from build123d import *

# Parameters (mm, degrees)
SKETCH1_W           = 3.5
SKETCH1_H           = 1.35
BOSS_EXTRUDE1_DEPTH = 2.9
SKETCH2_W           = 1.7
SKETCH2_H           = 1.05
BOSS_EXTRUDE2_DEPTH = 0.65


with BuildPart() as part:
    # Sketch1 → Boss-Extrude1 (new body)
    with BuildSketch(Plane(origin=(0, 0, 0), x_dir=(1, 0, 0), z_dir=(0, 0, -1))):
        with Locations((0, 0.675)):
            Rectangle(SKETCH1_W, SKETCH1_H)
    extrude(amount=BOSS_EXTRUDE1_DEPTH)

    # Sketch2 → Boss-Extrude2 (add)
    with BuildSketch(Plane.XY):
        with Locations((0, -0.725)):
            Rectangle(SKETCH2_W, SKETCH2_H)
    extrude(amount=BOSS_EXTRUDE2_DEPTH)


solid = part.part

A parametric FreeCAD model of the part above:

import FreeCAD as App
import Part
import Sketcher

V = App.Vector

doc = App.newDocument("Part")
body = doc.addObject("PartDesign::Body", "Body")

# Sketch on XY plane
sketch1 = body.newObject("Sketcher::SketchObject", "Sketch")
sketch1.AttachmentSupport = (doc.getObject("XY_Plane"), [""])
sketch1.MapMode = "FlatFace"
sketch1.addGeometry([
    Part.LineSegment(V(-1.75, -1.35, 0), V(-1.75, 0, 0)),
    Part.LineSegment(V(-1.75, 0, 0), V(1.75, 0, 0)),
    Part.LineSegment(V(1.75, 0, 0), V(1.75, -1.35, 0)),
    Part.LineSegment(V(1.75, -1.35, 0), V(-1.75, -1.35, 0)),
], False)
sketch1.addConstraint([
    Sketcher.Constraint("Coincident", 0, 2, 1, 1),
    Sketcher.Constraint("Coincident", 1, 2, 2, 1),
    Sketcher.Constraint("Coincident", 2, 2, 3, 1),
    Sketcher.Constraint("Coincident", 3, 2, 0, 1),
    Sketcher.Constraint("Vertical", 0),
    Sketcher.Constraint("Horizontal", 1),
    Sketcher.Constraint("Vertical", 2),
    Sketcher.Constraint("Horizontal", 3),
    Sketcher.Constraint("Symmetric", 0, 2, 1, 2, -1, 1),
    Sketcher.Constraint("DistanceX", 1, 1, 1, 2, 3.5),
    Sketcher.Constraint("DistanceY", 0, 1, 0, 2, 1.35),
])
pad1 = body.newObject("PartDesign::Pad", "Pad")
pad1.Profile = sketch1
pad1.Length = 2.9
pad1.Reversed = True

# Sketch on XY plane
sketch2 = body.newObject("Sketcher::SketchObject", "Sketch001")
sketch2.AttachmentSupport = (doc.getObject("XY_Plane"), [""])
sketch2.MapMode = "FlatFace"
sketch2.addGeometry([
    Part.LineSegment(V(-0.85, -0.2, 0), V(-0.85, -1.25, 0)),
    Part.LineSegment(V(-0.85, -1.25, 0), V(0.85, -1.25, 0)),
    Part.LineSegment(V(0.85, -1.25, 0), V(0.85, -0.2, 0)),
    Part.LineSegment(V(0.85, -0.2, 0), V(-0.85, -0.2, 0)),
], False)
sketch2.addConstraint([
    Sketcher.Constraint("Coincident", 0, 2, 1, 1),
    Sketcher.Constraint("Coincident", 1, 2, 2, 1),
    Sketcher.Constraint("Coincident", 2, 2, 3, 1),
    Sketcher.Constraint("Coincident", 3, 2, 0, 1),
    Sketcher.Constraint("Vertical", 0),
    Sketcher.Constraint("Horizontal", 1),
    Sketcher.Constraint("Vertical", 2),
    Sketcher.Constraint("Horizontal", 3),
    Sketcher.Constraint("DistanceX", 1, 1, 1, 2, 1.7),
    Sketcher.Constraint("DistanceY", 0, 2, 0, 1, 1.05),
    Sketcher.Constraint("DistanceY", 2, 2, -1, 1, 0.2),
    Sketcher.Constraint("DistanceX", 0, 2, -1, 1, 0.85),
])
pad2 = body.newObject("PartDesign::Pad", "Pad001")
pad2.Profile = sketch2
pad2.Length = 0.65

doc.recompute()
